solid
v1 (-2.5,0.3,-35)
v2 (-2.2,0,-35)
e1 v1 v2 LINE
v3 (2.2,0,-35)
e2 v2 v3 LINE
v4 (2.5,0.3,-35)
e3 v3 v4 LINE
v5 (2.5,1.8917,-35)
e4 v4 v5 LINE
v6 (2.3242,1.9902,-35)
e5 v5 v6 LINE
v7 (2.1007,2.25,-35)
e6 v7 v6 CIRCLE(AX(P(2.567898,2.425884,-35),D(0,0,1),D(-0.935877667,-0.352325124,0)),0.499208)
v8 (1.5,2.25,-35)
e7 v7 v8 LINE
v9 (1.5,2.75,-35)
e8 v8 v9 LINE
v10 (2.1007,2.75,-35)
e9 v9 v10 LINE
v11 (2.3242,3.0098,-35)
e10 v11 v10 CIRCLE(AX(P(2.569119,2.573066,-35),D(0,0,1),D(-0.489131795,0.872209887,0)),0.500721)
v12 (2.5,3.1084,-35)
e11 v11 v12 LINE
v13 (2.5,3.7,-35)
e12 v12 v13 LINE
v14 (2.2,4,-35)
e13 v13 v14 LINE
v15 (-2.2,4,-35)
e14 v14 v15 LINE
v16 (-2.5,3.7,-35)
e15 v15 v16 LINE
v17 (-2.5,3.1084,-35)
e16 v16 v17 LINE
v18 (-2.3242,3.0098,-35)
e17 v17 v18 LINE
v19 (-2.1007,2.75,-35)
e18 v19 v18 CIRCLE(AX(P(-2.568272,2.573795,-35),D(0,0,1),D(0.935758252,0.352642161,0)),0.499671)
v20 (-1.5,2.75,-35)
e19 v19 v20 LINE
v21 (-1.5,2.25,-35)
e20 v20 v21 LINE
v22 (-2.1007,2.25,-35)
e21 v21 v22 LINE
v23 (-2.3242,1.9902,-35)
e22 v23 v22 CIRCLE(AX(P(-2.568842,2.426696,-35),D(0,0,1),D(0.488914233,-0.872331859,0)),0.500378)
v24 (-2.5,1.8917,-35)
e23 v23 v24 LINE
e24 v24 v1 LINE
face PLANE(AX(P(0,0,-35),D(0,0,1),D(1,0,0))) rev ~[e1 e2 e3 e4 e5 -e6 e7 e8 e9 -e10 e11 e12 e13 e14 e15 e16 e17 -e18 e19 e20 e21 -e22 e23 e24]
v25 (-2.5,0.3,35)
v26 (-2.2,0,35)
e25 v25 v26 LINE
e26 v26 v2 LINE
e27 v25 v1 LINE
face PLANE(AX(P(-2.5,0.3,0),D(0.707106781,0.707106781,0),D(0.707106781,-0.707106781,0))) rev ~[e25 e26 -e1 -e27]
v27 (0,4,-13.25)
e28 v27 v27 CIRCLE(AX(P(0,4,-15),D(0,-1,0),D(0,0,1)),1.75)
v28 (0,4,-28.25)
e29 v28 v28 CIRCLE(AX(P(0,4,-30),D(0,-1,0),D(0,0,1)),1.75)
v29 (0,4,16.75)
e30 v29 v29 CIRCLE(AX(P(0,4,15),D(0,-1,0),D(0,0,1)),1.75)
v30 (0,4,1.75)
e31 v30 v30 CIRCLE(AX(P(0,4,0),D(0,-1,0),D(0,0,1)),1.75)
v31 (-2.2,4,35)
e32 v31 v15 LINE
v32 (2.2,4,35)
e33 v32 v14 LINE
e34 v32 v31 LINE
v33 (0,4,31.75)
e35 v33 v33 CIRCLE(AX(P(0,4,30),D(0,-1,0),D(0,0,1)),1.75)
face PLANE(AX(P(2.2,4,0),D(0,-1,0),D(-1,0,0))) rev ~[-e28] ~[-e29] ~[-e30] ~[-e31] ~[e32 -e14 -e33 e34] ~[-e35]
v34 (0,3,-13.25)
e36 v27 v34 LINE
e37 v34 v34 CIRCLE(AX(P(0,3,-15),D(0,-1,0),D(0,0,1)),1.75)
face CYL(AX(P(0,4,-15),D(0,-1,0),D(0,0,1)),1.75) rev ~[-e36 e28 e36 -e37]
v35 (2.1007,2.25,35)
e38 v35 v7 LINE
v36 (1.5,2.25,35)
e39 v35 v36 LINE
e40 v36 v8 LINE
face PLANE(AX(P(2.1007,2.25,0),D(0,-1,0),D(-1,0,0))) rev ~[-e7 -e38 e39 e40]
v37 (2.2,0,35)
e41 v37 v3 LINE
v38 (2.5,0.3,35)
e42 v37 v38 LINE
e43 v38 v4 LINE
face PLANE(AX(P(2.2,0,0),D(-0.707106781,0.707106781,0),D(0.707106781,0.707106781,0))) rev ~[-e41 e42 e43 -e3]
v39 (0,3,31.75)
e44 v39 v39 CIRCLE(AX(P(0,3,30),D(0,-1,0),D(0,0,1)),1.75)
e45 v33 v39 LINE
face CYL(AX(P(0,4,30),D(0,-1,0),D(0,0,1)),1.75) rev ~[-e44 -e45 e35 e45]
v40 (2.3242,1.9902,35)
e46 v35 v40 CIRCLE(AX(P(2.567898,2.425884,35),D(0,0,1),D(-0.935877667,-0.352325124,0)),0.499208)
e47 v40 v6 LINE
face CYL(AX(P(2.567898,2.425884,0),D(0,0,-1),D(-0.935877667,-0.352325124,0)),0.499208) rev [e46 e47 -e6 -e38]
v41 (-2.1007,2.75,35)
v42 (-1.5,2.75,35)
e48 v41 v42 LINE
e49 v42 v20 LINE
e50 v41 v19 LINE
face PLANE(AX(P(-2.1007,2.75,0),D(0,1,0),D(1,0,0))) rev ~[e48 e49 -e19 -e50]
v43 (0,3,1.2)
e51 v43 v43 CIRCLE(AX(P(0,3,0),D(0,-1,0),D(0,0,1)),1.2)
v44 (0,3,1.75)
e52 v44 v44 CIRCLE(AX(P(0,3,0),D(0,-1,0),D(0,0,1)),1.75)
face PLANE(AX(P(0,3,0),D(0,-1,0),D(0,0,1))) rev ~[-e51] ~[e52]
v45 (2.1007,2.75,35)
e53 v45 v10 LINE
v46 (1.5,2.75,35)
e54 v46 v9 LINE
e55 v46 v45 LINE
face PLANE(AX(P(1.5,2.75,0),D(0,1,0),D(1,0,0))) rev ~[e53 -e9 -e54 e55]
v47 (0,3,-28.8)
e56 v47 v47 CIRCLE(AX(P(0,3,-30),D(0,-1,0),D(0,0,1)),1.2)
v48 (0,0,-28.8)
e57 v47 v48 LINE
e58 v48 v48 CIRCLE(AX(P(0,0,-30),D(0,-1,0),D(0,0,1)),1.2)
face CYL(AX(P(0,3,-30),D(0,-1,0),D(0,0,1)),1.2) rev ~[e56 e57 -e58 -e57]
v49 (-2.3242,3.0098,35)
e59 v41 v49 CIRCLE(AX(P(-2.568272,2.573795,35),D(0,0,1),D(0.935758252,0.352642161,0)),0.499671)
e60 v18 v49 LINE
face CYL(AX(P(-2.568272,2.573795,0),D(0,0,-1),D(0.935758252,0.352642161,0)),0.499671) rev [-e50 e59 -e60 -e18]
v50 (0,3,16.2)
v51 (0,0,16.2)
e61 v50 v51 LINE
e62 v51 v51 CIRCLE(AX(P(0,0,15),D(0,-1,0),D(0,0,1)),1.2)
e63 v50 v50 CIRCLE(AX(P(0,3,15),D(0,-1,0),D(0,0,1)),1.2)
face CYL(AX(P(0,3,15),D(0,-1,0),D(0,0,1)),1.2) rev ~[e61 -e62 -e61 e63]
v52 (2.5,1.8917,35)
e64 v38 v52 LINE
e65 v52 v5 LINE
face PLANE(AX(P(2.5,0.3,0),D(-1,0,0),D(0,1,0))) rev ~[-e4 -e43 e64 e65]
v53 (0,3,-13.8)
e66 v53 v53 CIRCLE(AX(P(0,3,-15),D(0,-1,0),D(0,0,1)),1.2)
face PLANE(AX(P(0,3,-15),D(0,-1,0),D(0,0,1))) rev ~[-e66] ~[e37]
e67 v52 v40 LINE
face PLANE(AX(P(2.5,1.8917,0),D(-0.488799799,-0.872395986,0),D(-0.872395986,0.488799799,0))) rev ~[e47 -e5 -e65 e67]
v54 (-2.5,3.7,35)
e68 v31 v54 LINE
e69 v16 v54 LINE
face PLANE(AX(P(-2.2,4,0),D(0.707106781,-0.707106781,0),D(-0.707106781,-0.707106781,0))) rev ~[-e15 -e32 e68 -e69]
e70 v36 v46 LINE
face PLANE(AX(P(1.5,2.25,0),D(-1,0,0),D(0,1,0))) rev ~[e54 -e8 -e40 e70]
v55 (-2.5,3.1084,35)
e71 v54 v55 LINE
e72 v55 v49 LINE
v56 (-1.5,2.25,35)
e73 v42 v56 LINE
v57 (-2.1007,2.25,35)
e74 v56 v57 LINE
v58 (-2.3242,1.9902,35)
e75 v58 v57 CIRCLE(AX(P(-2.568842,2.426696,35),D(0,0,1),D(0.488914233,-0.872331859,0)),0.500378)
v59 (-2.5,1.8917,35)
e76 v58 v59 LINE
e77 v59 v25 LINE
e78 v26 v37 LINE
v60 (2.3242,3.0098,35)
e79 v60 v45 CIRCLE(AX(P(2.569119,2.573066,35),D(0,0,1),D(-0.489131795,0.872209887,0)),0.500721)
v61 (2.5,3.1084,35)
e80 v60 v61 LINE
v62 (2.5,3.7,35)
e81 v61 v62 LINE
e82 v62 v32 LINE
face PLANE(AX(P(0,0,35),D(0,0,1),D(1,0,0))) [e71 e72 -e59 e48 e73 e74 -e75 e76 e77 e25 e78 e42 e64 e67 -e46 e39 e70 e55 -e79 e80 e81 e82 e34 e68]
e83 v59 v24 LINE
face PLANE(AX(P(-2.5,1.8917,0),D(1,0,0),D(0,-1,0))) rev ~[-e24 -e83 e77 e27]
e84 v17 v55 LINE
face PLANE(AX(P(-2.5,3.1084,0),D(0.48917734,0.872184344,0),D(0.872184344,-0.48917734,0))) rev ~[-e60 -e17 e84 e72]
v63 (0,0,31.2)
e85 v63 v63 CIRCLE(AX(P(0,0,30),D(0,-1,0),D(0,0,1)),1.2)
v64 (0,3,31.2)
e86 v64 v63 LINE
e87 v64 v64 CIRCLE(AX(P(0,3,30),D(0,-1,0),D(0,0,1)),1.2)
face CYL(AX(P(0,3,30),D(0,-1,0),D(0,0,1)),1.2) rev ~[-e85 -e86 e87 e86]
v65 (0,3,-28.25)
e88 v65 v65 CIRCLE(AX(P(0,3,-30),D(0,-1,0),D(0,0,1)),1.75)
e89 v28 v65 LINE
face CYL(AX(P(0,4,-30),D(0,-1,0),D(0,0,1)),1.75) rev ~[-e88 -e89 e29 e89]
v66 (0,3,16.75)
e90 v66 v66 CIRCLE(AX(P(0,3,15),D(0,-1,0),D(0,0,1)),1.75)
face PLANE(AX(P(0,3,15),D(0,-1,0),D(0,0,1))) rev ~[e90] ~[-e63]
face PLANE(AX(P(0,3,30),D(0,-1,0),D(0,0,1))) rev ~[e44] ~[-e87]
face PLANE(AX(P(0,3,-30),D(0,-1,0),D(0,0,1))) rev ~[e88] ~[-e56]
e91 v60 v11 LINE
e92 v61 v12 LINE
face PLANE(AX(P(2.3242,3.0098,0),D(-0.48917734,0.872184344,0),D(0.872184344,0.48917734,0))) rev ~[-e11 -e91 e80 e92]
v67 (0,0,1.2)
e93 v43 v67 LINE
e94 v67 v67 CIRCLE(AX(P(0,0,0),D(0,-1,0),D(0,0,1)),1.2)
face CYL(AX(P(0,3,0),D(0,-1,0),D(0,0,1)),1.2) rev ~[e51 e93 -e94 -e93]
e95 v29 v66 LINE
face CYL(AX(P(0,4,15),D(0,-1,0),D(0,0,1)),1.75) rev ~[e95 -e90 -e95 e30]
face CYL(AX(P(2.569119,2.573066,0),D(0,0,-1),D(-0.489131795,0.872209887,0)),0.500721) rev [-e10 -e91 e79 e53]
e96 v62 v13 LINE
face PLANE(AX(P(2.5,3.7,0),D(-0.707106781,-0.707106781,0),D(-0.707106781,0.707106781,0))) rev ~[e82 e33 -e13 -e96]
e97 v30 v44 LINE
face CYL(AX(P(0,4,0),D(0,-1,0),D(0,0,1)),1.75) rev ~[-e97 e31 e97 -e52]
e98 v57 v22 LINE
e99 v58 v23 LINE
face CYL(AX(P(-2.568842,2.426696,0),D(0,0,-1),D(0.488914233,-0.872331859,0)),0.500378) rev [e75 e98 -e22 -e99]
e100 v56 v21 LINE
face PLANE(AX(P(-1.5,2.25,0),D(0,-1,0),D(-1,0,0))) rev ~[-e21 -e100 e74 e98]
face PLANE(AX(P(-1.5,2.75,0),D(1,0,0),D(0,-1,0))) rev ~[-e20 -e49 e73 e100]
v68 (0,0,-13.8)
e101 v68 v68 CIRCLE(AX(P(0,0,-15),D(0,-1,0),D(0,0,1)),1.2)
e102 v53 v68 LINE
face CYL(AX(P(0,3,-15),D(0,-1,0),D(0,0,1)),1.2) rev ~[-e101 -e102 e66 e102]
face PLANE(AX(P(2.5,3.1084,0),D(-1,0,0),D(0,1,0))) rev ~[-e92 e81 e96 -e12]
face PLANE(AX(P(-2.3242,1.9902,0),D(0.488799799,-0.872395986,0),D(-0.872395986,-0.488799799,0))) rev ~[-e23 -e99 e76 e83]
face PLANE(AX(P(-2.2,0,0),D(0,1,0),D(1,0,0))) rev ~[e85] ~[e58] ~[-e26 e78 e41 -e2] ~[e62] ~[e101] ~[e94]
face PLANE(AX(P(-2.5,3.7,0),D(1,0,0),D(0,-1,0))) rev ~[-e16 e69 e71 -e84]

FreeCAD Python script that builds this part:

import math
import FreeCAD as App
import Part
import Sketcher

V = App.Vector
Q = App.Units.Quantity

doc = App.newDocument("Part")
body = doc.addObject("PartDesign::Body", "Body")

# Sketch on XY plane
sketch1 = body.newObject("Sketcher::SketchObject", "Sketch")
sketch1.AttachmentSupport = (doc.getObject("XY_Plane"), [""])
sketch1.MapMode = "FlatFace"
sketch1.addGeometry(Part.LineSegment(V(-2.2, 4, 0), V(-2.5, 3.7, 0)), False)
sketch1.addGeometry(Part.LineSegment(V(-2.5, 3.7, 0), V(-2.5, 3.11, 0)), False)
sketch1.addGeometry(Part.LineSegment(V(-2.5, 3.11, 0), V(-2.32, 3.01, 0)), False)
sketch1.addGeometry(Part.ArcOfCircle(Part.Circle(V(-2.57, 2.57, 0), V(0, 0, 1), 0.5), math.radians(21), math.radians(61)), False)
sketch1.addGeometry(Part.LineSegment(V(-2.1, 2.75, 0), V(-1.5, 2.75, 0)), False)
sketch1.addGeometry(Part.LineSegment(V(-1.5, 2.75, 0), V(-1.5, 2.25, 0)), False)
sketch1.addGeometry(Part.LineSegment(V(-1.5, 2.25, 0), V(-2.1, 2.25, 0)), False)
sketch1.addGeometry(Part.ArcOfCircle(Part.Circle(V(-2.57, 2.43, 0), V(0, 0, 1), 0.5), math.radians(-61), math.radians(-21)), False)
sketch1.addGeometry(Part.LineSegment(V(-2.32, 1.99, 0), V(-2.5, 1.89, 0)), False)
sketch1.addGeometry(Part.LineSegment(V(-2.5, 1.89, 0), V(-2.5, 0.3, 0)), False)
sketch1.addGeometry(Part.LineSegment(V(-2.5, 0.3, 0), V(-2.2, 0, 0)), False)
sketch1.addGeometry(Part.LineSegment(V(-2.2, 0, 0), V(2.2, 0, 0)), False)
sketch1.addGeometry(Part.LineSegment(V(2.2, 0, 0), V(2.5, 0.3, 0)), False)
sketch1.addGeometry(Part.LineSegment(V(2.5, 0.3, 0), V(2.5, 1.89, 0)), False)
sketch1.addGeometry(Part.LineSegment(V(2.5, 1.89, 0), V(2.32, 1.99, 0)), False)
sketch1.addGeometry(Part.ArcOfCircle(Part.Circle(V(2.57, 2.43, 0), V(0, 0, 1), 0.5), math.radians(-159), math.radians(-119)), False)
sketch1.addGeometry(Part.LineSegment(V(2.1, 2.25, 0), V(1.5, 2.25, 0)), False)
sketch1.addGeometry(Part.LineSegment(V(1.5, 2.25, 0), V(1.5, 2.75, 0)), False)
sketch1.addGeometry(Part.LineSegment(V(1.5, 2.75, 0), V(2.1, 2.75, 0)), False)
sketch1.addGeometry(Part.ArcOfCircle(Part.Circle(V(2.57, 2.57, 0), V(0, 0, 1), 0.5), math.radians(119), math.radians(159)), False)
sketch1.addGeometry(Part.LineSegment(V(2.32, 3.01, 0), V(2.5, 3.11, 0)), False)
sketch1.addGeometry(Part.LineSegment(V(2.5, 3.11, 0), V(2.5, 3.7, 0)), False)
sketch1.addGeometry(Part.LineSegment(V(2.5, 3.7, 0), V(2.2, 4, 0)), False)
sketch1.addGeometry(Part.LineSegment(V(2.2, 4, 0), V(-2.2, 4, 0)), False)
sketch1.addConstraint(Sketcher.Constraint("Coincident", 0, 2, 1, 1))
sketch1.addConstraint(Sketcher.Constraint("Coincident", 1, 2, 2, 1))
sketch1.addConstraint(Sketcher.Constraint("Tangent", 2, 2, 3, 2))
sketch1.addConstraint(Sketcher.Constraint("Coincident", 3, 1, 4, 1))
sketch1.addConstraint(Sketcher.Constraint("Coincident", 4, 2, 5, 1))
sketch1.addConstraint(Sketcher.Constraint("Coincident", 5, 2, 6, 1))
sketch1.addConstraint(Sketcher.Constraint("Coincident", 6, 2, 7, 2))
sketch1.addConstraint(Sketcher.Constraint("Tangent", 7, 1, 8, 1))
sketch1.addConstraint(Sketcher.Constraint("Coincident", 8, 2, 9, 1))
sketch1.addConstraint(Sketcher.Constraint("Coincident", 9, 2, 10, 1))
sketch1.addConstraint(Sketcher.Constraint("Coincident", 10, 2, 11, 1))
sketch1.addConstraint(Sketcher.Constraint("Coincident", 11, 2, 12, 1))
sketch1.addConstraint(Sketcher.Constraint("Coincident", 12, 2, 13, 1))
sketch1.addConstraint(Sketcher.Constraint("Coincident", 13, 2, 14, 1))
sketch1.addConstraint(Sketcher.Constraint("Tangent", 14, 2, 15, 2))
sketch1.addConstraint(Sketcher.Constraint("Coincident", 15, 1, 16, 1))
sketch1.addConstraint(Sketcher.Constraint("Coincident", 16, 2, 17, 1))
sketch1.addConstraint(Sketcher.Constraint("Coincident", 17, 2, 18, 1))
sketch1.addConstraint(Sketcher.Constraint("Coincident", 18, 2, 19, 2))
sketch1.addConstraint(Sketcher.Constraint("Tangent", 19, 1, 20, 1))
sketch1.addConstraint(Sketcher.Constraint("Coincident", 20, 2, 21, 1))
sketch1.addConstraint(Sketcher.Constraint("Coincident", 21, 2, 22, 1))
sketch1.addConstraint(Sketcher.Constraint("Coincident", 22, 2, 23, 1))
sketch1.addConstraint(Sketcher.Constraint("Coincident", 23, 2, 0, 1))
sketch1.addConstraint(Sketcher.Constraint("Vertical", 1))
sketch1.addConstraint(Sketcher.Constraint("Horizontal", 4))
sketch1.addConstraint(Sketcher.Constraint("Vertical", 5))
sketch1.addConstraint(Sketcher.Constraint("Horizontal", 6))
sketch1.addConstraint(Sketcher.Constraint("Vertical", 9))
sketch1.addConstraint(Sketcher.Constraint("Horizontal", 11))
sketch1.addConstraint(Sketcher.Constraint("Vertical", 13))
sketch1.addConstraint(Sketcher.Constraint("Horizontal", 16))
sketch1.addConstraint(Sketcher.Constraint("Vertical", 17))
sketch1.addConstraint(Sketcher.Constraint("Horizontal", 18))
sketch1.addConstraint(Sketcher.Constraint("Vertical", 21))
sketch1.addConstraint(Sketcher.Constraint("Horizontal", 23))
sketch1.addConstraint(Sketcher.Constraint("Equal", 3, 7))
sketch1.addConstraint(Sketcher.Constraint("Equal", 7, 15))
sketch1.addConstraint(Sketcher.Constraint("Equal", 15, 19))
sketch1.addConstraint(Sketcher.Constraint("Symmetric", 10, 2, 11, 2, -1, 1))
sketch1.addConstraint(Sketcher.Constraint("Symmetric", 7, 3, 15, 3, -2))
sketch1.addConstraint(Sketcher.Constraint("Symmetric", 3, 3, 19, 3, -2))
sketch1.addConstraint(Sketcher.Constraint("Symmetric", 9, 2, 12, 2, -2))
sketch1.addConstraint(Sketcher.Constraint("Symmetric", 5, 2, 16, 2, -2))
sketch1.addConstraint(Sketcher.Constraint("Symmetric", 1, 2, 20, 2, -2))
sketch1.addConstraint(Sketcher.Constraint("Perpendicular", 0, 10))
sketch1.addConstraint(Sketcher.Constraint("Perpendicular", 10, 12))
sketch1.addConstraint(Sketcher.Constraint("Parallel", 2, 14))
sketch1.addConstraint(Sketcher.Constraint("Parallel", 8, 20))
sketch1.addConstraint(Sketcher.Constraint("Perpendicular", 12, 22))
sketch1.addConstraint(Sketcher.Constraint("Horizontal", 4, 2, 17, 2))
sketch1.addConstraint(Sketcher.Constraint("Horizontal", 0, 2, 21, 2))
sketch1.addConstraint(Sketcher.Constraint("Vertical", 3, 3, 7, 3))
sketch1.addConstraint(Sketcher.Constraint("Vertical", 3, 1, 6, 2))
sketch1.addConstraint(Sketcher.Constraint("Vertical", 1, 2, 8, 2))
sketch1.addConstraint(Sketcher.Constraint("Vertical", 11, 2, 22, 2))
sketch1.addConstraint(Sketcher.Constraint("Radius", 3, Q("0.5 mm")))
sketch1.addConstraint(Sketcher.Constraint("DistanceX", 11, 1, 11, 2, Q("4.4 mm")))
sketch1.addConstraint(Sketcher.Constraint("DistanceY", 5, 2, 5, 1, Q("0.5 mm")))
sketch1.addConstraint(Sketcher.Constraint("DistanceY", -1, 1, 22, 2, Q("4 mm")))
sketch1.addConstraint(Sketcher.Constraint("DistanceX", 1, 2, 4, 2, Q("1 mm")))
sketch1.addConstraint(Sketcher.Constraint("DistanceX", 5, 2, 12, 2, Q("4 mm")))
sketch1.addConstraint(Sketcher.Constraint("DistanceY", -1, 1, 3, 1, Q("2.75 mm")))
sketch1.addConstraint(Sketcher.Constraint("DistanceX", 4, 1, 4, 2, Q("0.6007 mm")))
sketch1.addConstraint(Sketcher.Constraint("DistanceY", 1, 2, 1, 1, Q("0.5916 mm")))
sketch1.addConstraint(Sketcher.Constraint("DistanceY", 7, 3, 1, 2, Q("0.682 mm")))
pad1 = body.newObject("PartDesign::Pad", "Pad")
pad1.Profile = sketch1
pad1.Length = 70
pad1.Midplane = True

# Sketch on XZ plane
sketch2 = body.newObject("Sketcher::SketchObject", "Sketch001")
sketch2.AttachmentSupport = (doc.getObject("XZ_Plane"), [""])
sketch2.MapMode = "FlatFace"
sketch2.AttachmentOffset = App.Placement(V(0, 0, -4), App.Rotation())
sketch2.addGeometry(Part.Circle(V(0, -30, 0), V(0, 0, 1), 1.2), False)
sketch2.addConstraint(Sketcher.Constraint("PointOnObject", 0, 3, -2))
sketch2.addConstraint(Sketcher.Constraint("Diameter", 0, Q("2.4 mm")))
sketch2.addConstraint(Sketcher.Constraint("DistanceY", 0, 3, -1, 1, Q("30 mm")))
doc.recompute()
hole = body.newObject("PartDesign::Hole", "Hole")
hole.Profile = sketch2
hole.ThreadType = "None"
hole.Diameter = 2.4
hole.DepthType = "Dimension"
hole.Depth = 4
hole.DrillPoint = "Flat"
hole.HoleCutType = "Counterbore"
hole.HoleCutDiameter = 3.5
hole.HoleCutDepth = 1
hole.Reversed = True
doc.recompute()

linearpattern = body.newObject("PartDesign::LinearPattern", "LinearPattern")
linearpattern.Originals = [hole]
linearpattern.Direction = (doc.getObject("Z_Axis"), [""])
linearpattern.Mode = "offset"
linearpattern.Offset = 15
linearpattern.Occurrences = 5
body.Tip = linearpattern

doc.recompute()
